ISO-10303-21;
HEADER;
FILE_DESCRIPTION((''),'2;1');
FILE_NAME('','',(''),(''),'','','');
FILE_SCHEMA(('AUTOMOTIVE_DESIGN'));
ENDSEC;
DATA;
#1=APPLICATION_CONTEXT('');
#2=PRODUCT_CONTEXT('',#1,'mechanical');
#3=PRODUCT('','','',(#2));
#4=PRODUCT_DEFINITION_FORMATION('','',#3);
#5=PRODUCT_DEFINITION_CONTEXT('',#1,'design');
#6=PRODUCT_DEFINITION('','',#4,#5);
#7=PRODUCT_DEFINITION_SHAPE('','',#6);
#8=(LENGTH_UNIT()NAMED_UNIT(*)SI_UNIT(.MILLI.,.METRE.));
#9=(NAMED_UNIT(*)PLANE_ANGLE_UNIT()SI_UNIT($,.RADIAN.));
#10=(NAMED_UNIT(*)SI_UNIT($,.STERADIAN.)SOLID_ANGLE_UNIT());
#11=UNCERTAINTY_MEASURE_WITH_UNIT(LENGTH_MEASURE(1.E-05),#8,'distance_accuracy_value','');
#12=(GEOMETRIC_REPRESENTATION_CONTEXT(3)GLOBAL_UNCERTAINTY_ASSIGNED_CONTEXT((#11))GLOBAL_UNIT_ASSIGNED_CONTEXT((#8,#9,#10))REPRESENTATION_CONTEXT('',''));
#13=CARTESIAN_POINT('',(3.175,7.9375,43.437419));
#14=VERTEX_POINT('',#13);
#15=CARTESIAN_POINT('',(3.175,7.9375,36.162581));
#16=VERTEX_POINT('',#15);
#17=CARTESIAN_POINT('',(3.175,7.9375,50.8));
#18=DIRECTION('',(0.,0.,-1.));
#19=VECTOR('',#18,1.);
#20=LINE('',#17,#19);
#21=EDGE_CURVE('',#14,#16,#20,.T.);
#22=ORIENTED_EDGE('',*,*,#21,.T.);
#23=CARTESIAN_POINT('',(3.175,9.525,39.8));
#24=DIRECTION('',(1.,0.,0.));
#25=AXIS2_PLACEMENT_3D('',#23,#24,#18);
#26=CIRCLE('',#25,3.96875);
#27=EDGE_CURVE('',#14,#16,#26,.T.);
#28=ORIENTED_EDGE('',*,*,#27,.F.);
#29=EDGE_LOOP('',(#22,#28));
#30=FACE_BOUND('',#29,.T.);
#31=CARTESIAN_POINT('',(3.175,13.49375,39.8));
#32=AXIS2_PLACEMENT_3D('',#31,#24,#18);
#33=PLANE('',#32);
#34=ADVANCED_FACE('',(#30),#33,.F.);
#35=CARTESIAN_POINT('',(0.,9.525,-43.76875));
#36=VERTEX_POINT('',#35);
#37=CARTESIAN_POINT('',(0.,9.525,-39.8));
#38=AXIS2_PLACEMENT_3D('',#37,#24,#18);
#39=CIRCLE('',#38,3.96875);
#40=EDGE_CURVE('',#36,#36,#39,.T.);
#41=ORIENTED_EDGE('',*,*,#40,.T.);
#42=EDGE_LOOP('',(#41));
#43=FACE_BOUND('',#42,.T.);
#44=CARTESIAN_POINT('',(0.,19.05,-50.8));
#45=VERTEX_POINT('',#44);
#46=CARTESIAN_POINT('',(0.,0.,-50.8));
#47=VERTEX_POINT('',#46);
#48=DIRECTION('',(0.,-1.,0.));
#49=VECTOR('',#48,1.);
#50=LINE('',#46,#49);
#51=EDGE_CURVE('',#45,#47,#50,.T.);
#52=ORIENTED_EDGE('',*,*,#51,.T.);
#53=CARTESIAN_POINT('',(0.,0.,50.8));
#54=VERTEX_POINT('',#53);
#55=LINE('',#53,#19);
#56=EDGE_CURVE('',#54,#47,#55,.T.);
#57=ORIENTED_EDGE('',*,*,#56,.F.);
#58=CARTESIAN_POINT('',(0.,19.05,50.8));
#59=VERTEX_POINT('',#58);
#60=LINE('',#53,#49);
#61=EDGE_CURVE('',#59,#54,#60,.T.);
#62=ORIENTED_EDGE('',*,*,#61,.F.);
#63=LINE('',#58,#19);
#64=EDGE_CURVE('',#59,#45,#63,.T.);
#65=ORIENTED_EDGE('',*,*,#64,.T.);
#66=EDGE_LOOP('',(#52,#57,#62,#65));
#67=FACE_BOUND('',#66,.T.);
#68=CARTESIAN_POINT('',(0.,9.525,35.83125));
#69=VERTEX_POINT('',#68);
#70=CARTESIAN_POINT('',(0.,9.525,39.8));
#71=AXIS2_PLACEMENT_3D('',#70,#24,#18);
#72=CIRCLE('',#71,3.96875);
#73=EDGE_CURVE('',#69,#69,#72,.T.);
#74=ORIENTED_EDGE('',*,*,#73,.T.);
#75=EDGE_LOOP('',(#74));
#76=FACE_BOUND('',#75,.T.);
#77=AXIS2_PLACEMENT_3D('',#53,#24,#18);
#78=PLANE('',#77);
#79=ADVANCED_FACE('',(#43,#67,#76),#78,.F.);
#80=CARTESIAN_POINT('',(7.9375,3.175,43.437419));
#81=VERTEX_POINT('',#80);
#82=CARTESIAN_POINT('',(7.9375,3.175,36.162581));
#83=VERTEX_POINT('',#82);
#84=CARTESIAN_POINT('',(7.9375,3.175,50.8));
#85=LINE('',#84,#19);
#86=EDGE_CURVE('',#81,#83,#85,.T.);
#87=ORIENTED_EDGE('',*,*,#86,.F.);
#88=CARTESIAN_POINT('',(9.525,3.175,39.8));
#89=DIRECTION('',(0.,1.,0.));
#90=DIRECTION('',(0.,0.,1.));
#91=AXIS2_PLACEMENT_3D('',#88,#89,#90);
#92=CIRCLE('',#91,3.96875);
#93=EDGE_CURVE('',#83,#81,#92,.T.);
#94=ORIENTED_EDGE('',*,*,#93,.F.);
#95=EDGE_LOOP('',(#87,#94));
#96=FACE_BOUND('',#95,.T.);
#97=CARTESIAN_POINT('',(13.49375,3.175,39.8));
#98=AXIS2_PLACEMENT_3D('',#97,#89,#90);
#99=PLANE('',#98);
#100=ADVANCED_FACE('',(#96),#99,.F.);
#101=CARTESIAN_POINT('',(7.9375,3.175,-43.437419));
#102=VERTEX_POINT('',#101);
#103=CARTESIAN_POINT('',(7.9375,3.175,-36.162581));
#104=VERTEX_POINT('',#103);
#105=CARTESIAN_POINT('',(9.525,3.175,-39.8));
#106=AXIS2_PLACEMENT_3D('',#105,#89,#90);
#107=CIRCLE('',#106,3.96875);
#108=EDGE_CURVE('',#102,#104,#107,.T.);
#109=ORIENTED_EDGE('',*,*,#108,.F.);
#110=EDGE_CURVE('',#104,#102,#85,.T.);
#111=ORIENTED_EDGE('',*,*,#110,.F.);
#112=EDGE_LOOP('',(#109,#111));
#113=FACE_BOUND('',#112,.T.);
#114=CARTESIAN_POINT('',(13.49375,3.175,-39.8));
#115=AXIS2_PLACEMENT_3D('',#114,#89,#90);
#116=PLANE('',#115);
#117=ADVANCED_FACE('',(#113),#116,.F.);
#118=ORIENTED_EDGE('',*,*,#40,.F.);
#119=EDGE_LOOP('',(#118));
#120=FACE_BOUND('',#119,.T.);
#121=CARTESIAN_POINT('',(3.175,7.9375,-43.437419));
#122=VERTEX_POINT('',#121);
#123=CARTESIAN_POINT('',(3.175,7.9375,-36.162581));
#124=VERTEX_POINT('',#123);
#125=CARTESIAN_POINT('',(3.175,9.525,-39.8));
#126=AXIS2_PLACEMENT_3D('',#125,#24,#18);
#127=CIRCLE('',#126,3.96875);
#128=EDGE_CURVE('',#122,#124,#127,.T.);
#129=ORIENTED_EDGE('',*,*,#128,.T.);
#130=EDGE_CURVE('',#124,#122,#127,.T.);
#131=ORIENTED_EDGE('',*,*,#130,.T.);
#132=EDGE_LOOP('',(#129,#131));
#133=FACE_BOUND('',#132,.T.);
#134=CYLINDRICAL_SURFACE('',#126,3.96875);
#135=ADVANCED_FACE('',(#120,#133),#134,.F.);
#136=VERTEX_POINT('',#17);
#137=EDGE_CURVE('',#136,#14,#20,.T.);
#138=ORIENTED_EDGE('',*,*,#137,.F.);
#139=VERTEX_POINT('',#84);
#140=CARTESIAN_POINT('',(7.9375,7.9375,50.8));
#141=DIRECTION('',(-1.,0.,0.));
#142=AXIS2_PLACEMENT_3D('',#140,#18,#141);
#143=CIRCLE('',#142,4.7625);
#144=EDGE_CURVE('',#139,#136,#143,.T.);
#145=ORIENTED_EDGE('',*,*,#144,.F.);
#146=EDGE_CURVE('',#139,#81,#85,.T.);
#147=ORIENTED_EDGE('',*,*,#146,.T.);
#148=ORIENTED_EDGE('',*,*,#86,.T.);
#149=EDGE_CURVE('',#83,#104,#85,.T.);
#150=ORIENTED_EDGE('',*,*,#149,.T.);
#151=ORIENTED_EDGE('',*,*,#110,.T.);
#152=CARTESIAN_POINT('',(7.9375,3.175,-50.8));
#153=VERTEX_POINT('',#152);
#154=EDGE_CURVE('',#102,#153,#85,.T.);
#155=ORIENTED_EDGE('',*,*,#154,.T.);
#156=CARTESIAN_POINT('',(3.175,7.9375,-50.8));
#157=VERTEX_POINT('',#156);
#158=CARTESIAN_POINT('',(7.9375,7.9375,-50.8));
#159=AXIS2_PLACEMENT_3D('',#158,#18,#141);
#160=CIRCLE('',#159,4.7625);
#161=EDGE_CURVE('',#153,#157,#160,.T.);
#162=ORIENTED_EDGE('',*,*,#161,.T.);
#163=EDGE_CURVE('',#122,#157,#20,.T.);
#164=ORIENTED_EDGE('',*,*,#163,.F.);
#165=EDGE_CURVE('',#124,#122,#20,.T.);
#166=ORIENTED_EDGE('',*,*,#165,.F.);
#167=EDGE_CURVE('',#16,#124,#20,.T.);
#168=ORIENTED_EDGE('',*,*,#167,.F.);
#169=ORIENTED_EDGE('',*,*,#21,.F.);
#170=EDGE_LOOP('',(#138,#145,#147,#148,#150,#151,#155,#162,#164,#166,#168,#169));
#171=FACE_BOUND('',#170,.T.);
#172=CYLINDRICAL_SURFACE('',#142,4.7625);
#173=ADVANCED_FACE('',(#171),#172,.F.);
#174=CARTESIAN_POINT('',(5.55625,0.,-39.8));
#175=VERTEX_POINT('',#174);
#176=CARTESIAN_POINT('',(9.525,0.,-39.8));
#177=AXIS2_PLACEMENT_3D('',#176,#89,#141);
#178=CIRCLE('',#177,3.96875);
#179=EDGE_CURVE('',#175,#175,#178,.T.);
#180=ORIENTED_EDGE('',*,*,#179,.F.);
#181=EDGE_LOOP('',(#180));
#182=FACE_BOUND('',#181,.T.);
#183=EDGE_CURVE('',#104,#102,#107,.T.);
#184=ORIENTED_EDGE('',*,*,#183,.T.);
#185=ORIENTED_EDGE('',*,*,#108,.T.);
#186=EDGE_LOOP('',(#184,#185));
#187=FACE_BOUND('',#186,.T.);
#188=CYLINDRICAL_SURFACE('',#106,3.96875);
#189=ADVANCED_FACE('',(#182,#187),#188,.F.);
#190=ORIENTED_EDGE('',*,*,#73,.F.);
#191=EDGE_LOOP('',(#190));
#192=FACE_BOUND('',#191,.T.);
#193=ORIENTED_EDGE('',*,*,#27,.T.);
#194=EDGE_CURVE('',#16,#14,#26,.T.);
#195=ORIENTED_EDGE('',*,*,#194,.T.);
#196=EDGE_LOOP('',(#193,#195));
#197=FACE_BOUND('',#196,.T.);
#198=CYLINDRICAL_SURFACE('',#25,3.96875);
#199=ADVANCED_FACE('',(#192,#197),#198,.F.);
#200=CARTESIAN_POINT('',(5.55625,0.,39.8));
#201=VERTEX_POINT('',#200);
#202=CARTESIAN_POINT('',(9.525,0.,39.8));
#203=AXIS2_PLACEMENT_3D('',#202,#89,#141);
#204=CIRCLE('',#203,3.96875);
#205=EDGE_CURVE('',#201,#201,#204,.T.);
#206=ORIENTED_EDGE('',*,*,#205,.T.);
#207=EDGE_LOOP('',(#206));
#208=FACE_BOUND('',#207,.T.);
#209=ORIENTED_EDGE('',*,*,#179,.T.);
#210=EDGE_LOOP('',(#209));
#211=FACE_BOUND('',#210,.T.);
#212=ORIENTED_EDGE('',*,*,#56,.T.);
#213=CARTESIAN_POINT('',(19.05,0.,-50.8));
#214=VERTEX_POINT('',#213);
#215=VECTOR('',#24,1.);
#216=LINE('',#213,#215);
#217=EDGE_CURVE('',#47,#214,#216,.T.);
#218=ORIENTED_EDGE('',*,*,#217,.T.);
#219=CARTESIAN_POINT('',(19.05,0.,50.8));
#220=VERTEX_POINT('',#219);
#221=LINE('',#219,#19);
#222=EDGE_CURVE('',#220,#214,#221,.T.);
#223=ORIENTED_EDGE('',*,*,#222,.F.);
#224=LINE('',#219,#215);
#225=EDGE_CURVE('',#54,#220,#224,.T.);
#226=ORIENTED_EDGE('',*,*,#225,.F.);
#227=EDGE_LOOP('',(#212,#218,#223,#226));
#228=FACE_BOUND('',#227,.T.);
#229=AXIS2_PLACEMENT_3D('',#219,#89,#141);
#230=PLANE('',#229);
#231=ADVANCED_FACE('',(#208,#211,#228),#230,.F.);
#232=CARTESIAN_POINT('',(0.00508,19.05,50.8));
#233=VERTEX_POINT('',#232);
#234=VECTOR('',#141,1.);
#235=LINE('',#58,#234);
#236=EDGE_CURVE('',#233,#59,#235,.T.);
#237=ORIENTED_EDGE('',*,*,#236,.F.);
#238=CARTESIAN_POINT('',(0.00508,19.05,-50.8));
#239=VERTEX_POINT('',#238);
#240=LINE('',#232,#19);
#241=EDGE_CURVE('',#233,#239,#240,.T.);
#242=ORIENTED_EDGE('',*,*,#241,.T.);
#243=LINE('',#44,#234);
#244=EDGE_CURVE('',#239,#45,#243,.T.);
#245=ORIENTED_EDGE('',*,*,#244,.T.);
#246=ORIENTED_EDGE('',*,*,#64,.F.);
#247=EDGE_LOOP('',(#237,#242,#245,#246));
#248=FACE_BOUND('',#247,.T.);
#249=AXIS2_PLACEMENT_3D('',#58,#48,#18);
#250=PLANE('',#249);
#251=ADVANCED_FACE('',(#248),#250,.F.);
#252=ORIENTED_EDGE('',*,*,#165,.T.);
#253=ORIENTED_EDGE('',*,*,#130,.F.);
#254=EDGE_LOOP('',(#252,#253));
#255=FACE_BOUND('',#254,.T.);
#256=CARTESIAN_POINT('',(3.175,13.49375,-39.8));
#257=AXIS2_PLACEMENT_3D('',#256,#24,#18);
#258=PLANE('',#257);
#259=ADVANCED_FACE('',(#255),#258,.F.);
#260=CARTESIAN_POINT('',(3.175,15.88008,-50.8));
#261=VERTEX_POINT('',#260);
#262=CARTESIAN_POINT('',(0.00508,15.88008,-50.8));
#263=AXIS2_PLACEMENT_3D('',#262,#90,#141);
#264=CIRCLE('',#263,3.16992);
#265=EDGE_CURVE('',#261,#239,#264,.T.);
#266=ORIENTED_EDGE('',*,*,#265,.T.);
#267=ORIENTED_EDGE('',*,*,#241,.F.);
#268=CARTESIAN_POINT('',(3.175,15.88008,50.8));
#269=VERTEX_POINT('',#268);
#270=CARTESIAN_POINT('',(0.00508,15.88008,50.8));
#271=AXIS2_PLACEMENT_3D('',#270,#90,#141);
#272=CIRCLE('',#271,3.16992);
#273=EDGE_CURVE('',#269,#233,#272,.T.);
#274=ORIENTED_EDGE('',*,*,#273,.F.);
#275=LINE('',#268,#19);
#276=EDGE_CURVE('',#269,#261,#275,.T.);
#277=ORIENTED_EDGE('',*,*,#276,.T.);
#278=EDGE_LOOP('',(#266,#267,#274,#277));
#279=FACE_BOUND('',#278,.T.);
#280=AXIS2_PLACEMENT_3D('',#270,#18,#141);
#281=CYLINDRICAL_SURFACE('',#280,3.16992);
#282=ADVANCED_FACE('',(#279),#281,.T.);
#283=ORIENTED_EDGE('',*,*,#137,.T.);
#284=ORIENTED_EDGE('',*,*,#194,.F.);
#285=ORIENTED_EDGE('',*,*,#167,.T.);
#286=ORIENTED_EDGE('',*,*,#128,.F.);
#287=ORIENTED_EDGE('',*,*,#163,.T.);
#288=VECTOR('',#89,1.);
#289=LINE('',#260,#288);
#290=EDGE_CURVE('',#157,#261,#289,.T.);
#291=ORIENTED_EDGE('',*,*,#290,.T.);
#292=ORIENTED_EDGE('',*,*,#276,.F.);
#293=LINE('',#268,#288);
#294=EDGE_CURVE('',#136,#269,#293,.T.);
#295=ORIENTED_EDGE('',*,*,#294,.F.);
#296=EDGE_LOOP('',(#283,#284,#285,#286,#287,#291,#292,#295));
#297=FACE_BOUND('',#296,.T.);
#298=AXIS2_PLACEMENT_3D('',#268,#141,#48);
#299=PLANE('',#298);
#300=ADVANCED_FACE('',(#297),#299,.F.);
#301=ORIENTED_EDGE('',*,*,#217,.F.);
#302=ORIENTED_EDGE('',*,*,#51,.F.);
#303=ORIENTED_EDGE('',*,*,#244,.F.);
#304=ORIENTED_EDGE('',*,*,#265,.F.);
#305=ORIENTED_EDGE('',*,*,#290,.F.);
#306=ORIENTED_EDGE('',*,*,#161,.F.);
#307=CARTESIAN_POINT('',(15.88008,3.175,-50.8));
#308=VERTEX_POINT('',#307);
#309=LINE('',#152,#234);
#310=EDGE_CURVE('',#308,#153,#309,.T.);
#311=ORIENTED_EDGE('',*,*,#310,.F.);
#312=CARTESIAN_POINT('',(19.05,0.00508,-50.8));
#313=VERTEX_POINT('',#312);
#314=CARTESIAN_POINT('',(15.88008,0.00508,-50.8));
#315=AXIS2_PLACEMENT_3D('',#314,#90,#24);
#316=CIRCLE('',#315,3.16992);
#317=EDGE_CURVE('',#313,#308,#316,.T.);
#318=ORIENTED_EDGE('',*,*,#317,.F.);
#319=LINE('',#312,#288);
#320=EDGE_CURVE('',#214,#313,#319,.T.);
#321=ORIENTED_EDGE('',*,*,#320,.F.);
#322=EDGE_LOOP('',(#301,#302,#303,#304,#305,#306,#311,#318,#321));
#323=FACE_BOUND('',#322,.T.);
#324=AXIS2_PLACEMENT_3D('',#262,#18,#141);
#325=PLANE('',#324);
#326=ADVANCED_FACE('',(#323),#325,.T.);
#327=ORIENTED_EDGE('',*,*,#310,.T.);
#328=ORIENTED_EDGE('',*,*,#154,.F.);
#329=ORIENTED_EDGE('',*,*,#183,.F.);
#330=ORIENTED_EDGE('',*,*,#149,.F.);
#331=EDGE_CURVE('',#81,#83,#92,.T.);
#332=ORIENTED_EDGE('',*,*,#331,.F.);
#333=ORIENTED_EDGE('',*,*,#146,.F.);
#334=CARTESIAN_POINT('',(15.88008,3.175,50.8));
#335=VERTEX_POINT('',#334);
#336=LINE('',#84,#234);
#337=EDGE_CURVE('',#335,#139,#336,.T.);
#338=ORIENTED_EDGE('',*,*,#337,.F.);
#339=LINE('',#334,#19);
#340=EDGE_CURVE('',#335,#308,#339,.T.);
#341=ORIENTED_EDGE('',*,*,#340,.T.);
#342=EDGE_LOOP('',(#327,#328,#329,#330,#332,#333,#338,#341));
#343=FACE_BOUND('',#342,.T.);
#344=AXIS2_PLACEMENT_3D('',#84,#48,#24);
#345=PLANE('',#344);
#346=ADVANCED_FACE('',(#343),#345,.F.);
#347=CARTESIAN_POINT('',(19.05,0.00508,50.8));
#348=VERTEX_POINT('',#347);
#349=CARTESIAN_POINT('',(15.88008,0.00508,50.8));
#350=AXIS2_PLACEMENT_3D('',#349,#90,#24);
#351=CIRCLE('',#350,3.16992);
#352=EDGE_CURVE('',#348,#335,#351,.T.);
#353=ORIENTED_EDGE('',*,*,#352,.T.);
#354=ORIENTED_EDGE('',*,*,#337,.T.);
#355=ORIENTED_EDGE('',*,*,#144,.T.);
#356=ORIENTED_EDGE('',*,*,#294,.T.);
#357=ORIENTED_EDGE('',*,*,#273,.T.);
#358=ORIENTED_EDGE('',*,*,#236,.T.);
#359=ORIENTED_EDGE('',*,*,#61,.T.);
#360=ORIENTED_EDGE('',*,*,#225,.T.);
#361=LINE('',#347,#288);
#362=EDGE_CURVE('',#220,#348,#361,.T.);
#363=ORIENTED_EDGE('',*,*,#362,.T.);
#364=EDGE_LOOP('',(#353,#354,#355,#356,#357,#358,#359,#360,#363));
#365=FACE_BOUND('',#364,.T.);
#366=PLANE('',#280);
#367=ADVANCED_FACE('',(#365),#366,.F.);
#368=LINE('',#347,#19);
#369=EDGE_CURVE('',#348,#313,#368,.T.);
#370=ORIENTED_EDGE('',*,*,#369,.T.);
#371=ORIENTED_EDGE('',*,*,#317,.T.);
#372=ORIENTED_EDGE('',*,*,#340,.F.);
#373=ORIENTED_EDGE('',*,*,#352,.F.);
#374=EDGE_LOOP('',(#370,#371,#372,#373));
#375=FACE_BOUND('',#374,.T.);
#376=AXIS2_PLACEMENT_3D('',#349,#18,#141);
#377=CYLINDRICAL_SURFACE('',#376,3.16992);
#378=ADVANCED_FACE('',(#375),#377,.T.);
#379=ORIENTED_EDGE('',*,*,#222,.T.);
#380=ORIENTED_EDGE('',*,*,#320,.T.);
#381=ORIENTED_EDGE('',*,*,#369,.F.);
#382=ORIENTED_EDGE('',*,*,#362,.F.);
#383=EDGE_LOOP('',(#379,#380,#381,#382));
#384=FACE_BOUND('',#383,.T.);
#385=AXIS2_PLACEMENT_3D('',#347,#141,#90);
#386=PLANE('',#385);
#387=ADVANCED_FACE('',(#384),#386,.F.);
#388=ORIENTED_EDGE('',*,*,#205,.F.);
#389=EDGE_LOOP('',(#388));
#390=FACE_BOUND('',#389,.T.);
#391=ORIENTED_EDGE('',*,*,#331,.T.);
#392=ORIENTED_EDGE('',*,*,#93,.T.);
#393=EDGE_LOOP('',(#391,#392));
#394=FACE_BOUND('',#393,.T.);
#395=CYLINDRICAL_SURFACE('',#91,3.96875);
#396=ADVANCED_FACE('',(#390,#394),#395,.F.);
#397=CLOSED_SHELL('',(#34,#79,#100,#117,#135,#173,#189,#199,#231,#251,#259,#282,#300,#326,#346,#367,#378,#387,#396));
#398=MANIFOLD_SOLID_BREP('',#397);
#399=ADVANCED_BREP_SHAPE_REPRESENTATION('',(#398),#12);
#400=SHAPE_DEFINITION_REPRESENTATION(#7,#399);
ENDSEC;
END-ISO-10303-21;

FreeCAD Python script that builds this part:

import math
import FreeCAD as App
import Part
import Sketcher
Q = App.Units.Quantity


def add_polygon(sketch, points):
    """Adds a closed chain of lines whose ends are joined by coincident constraints."""
    first, n = sketch.GeometryCount, len(points)
    for a, b in zip(points, points[1:] + points[:1]):
        sketch.addGeometry(Part.LineSegment(App.Vector(*a, 0), App.Vector(*b, 0)), False)
    for i in range(n):
        sketch.addConstraint(Sketcher.Constraint("Coincident", first + i, 2, first + (i + 1) % n, 1))

doc = App.newDocument("Part")
body = doc.addObject("PartDesign::Body", "Body")

# Sketch on XY plane
sketch1 = body.newObject("Sketcher::SketchObject", "Sketch")
sketch1.AttachmentSupport = (doc.getObject("XY_Plane"), [""])
sketch1.MapMode = "FlatFace"
sketch1.addGeometry([
    Part.LineSegment(App.Vector(0, 19.05, 0), App.Vector(0, 0, 0)),  # 0
    Part.LineSegment(App.Vector(0, 0, 0), App.Vector(19.05, 0, 0)),  # 1
    Part.LineSegment(App.Vector(19.05, 0, 0), App.Vector(19.05, 0.005, 0)),  # 2
    Part.ArcOfCircle(Part.Circle(App.Vector(15.88, 0.005, 0), App.Vector(0, 0, 1), 3.17), math.radians(0), math.radians(90)),  # 3
    Part.LineSegment(App.Vector(15.88, 3.175, 0), App.Vector(7.938, 3.175, 0)),  # 4
    Part.ArcOfCircle(Part.Circle(App.Vector(7.938, 7.938, 0), App.Vector(0, 0, 1), 4.763), math.radians(-180), math.radians(-90)),  # 5
    Part.LineSegment(App.Vector(3.175, 7.938, 0), App.Vector(3.175, 15.88, 0)),  # 6
    Part.ArcOfCircle(Part.Circle(App.Vector(0.005, 15.88, 0), App.Vector(0, 0, 1), 3.17), math.radians(0), math.radians(90)),  # 7
    Part.LineSegment(App.Vector(0.005, 19.05, 0), App.Vector(0, 19.05, 0)),  # 8
], False)
sketch1.addConstraint([
    Sketcher.Constraint("Coincident", 0, 2, 1, 1),
    Sketcher.Constraint("Coincident", 1, 2, 2, 1),
    Sketcher.Constraint("Tangent", 2, 2, 3, 1),
    Sketcher.Constraint("Tangent", 3, 2, 4, 1),
    Sketcher.Constraint("Tangent", 4, 2, 5, 2),
    Sketcher.Constraint("Tangent", 5, 1, 6, 1),
    Sketcher.Constraint("Tangent", 6, 2, 7, 1),
    Sketcher.Constraint("Tangent", 7, 2, 8, 1),
    Sketcher.Constraint("Coincident", 8, 2, 0, 1),
    Sketcher.Constraint("Vertical", 0),
    Sketcher.Constraint("Horizontal", 1),
    Sketcher.Constraint("Horizontal", 4),
    Sketcher.Constraint("Vertical", 6),
    Sketcher.Constraint("Coincident", 0, 2, -1, 1),
    Sketcher.Constraint("Equal", 3, 7),
    Sketcher.Constraint("Horizontal", 3, 3, 2, 2),
    Sketcher.Constraint("Equal", 1, 0),
    Sketcher.Constraint("Equal", 8, 2),
    Sketcher.Constraint("Equal", 4, 6),
    Sketcher.Constraint("Radius", 5, Q("0.1875 in")),
    Sketcher.Constraint("DistanceX", 1, 1, 1, 2, Q("0.75 in")),
    Sketcher.Constraint("Radius", 3, Q("0.1248 in")),
    Sketcher.Constraint("DistanceX", 4, 2, 4, 1, Q("0.3127 in")),
])
pad1 = body.newObject("PartDesign::Pad", "Pad")
pad1.Profile = sketch1
pad1.Length = Q("4 in")
pad1.Midplane = True

# Sketch on YZ plane
sketch2 = body.newObject("Sketcher::SketchObject", "Sketch001")
sketch2.AttachmentSupport = (doc.getObject("YZ_Plane"), [""])
sketch2.MapMode = "FlatFace"
sketch2.AttachmentOffset = App.Placement(App.Vector(0, 0, 0.375 * 25.4), App.Rotation())
add_polygon(sketch2, [(-18.3, 39.8), (3.2, 39.8), (3.2, 43.8), (-15.9, 43.8)])  # lines 0-3
sketch2.addGeometry(Part.LineSegment(App.Vector(3.2, 39.8, 0), App.Vector(-18.3, 39.8, 0)), True)  # axis
sketch2.addConstraint([
    Sketcher.Constraint("Horizontal", 0),
    Sketcher.Constraint("Vertical", 1),
    Sketcher.Constraint("Horizontal", 2),
    Sketcher.Constraint("Horizontal", 4),
    Sketcher.Constraint("Coincident", 4, 1, 0, 2),
    Sketcher.Constraint("Equal", 0, 4),
    Sketcher.Constraint("Angle", 3, Q("-121 deg")),
    Sketcher.Constraint("DistanceX", 2, 2, 2, 1, Q("0.75 in")),
    Sketcher.Constraint("DistanceY", 1, 1, 1, 2, Q("0.15625 in")),
    Sketcher.Constraint("DistanceX", -1, 1, 0, 2, Q("0.125 in")),
    Sketcher.Constraint("DistanceY", -1, 1, 0, 2, 39.8),
])
groove = body.newObject("PartDesign::Groove", "Groove")
groove.Profile = sketch2
groove.ReferenceAxis = (sketch2, ["Axis0"])
groove.Angle = 360
doc.recompute()

mirrored = body.newObject("PartDesign::Mirrored", "Mirrored")
mirrored.Originals = [groove]
mirrored.MirrorPlane = (doc.getObject("XY_Plane"), [""])
body.Tip = mirrored

# Sketch on XZ plane
sketch3 = body.newObject("Sketcher::SketchObject", "Sketch002")
sketch3.AttachmentSupport = (doc.getObject("XZ_Plane"), [""])
sketch3.MapMode = "FlatFace"
sketch3.AttachmentOffset = App.Placement(App.Vector(0, 0, -0.375 * 25.4), App.Rotation())
add_polygon(sketch3, [(-18.3, 39.8), (3.2, 39.8), (3.2, 35.8), (-15.9, 35.8)])  # lines 0-3
sketch3.addGeometry(Part.LineSegment(App.Vector(3.2, 39.8, 0), App.Vector(-18.3, 39.8, 0)), True)  # axis
sketch3.addConstraint([
    Sketcher.Constraint("Horizontal", 0),
    Sketcher.Constraint("Vertical", 1),
    Sketcher.Constraint("Horizontal", 2),
    Sketcher.Constraint("Horizontal", 4),
    Sketcher.Constraint("Coincident", 4, 1, 0, 2),
    Sketcher.Constraint("Equal", 0, 4),
    Sketcher.Constraint("Angle", 3, Q("121 deg")),
    Sketcher.Constraint("DistanceX", 2, 2, 2, 1, Q("0.75 in")),
    Sketcher.Constraint("DistanceY", 1, 2, 1, 1, Q("0.15625 in")),
    Sketcher.Constraint("DistanceX", -1, 1, 0, 2, Q("0.125 in")),
    Sketcher.Constraint("DistanceY", -1, 1, 0, 2, 39.8),
])
groove2 = body.newObject("PartDesign::Groove", "Groove001")
groove2.Profile = sketch3
groove2.ReferenceAxis = (sketch3, ["Axis0"])
groove2.Angle = 360
doc.recompute()

mirrored2 = body.newObject("PartDesign::Mirrored", "Mirrored001")
mirrored2.Originals = [groove2]
mirrored2.MirrorPlane = (doc.getObject("XY_Plane"), [""])
body.Tip = mirrored2

doc.recompute()
